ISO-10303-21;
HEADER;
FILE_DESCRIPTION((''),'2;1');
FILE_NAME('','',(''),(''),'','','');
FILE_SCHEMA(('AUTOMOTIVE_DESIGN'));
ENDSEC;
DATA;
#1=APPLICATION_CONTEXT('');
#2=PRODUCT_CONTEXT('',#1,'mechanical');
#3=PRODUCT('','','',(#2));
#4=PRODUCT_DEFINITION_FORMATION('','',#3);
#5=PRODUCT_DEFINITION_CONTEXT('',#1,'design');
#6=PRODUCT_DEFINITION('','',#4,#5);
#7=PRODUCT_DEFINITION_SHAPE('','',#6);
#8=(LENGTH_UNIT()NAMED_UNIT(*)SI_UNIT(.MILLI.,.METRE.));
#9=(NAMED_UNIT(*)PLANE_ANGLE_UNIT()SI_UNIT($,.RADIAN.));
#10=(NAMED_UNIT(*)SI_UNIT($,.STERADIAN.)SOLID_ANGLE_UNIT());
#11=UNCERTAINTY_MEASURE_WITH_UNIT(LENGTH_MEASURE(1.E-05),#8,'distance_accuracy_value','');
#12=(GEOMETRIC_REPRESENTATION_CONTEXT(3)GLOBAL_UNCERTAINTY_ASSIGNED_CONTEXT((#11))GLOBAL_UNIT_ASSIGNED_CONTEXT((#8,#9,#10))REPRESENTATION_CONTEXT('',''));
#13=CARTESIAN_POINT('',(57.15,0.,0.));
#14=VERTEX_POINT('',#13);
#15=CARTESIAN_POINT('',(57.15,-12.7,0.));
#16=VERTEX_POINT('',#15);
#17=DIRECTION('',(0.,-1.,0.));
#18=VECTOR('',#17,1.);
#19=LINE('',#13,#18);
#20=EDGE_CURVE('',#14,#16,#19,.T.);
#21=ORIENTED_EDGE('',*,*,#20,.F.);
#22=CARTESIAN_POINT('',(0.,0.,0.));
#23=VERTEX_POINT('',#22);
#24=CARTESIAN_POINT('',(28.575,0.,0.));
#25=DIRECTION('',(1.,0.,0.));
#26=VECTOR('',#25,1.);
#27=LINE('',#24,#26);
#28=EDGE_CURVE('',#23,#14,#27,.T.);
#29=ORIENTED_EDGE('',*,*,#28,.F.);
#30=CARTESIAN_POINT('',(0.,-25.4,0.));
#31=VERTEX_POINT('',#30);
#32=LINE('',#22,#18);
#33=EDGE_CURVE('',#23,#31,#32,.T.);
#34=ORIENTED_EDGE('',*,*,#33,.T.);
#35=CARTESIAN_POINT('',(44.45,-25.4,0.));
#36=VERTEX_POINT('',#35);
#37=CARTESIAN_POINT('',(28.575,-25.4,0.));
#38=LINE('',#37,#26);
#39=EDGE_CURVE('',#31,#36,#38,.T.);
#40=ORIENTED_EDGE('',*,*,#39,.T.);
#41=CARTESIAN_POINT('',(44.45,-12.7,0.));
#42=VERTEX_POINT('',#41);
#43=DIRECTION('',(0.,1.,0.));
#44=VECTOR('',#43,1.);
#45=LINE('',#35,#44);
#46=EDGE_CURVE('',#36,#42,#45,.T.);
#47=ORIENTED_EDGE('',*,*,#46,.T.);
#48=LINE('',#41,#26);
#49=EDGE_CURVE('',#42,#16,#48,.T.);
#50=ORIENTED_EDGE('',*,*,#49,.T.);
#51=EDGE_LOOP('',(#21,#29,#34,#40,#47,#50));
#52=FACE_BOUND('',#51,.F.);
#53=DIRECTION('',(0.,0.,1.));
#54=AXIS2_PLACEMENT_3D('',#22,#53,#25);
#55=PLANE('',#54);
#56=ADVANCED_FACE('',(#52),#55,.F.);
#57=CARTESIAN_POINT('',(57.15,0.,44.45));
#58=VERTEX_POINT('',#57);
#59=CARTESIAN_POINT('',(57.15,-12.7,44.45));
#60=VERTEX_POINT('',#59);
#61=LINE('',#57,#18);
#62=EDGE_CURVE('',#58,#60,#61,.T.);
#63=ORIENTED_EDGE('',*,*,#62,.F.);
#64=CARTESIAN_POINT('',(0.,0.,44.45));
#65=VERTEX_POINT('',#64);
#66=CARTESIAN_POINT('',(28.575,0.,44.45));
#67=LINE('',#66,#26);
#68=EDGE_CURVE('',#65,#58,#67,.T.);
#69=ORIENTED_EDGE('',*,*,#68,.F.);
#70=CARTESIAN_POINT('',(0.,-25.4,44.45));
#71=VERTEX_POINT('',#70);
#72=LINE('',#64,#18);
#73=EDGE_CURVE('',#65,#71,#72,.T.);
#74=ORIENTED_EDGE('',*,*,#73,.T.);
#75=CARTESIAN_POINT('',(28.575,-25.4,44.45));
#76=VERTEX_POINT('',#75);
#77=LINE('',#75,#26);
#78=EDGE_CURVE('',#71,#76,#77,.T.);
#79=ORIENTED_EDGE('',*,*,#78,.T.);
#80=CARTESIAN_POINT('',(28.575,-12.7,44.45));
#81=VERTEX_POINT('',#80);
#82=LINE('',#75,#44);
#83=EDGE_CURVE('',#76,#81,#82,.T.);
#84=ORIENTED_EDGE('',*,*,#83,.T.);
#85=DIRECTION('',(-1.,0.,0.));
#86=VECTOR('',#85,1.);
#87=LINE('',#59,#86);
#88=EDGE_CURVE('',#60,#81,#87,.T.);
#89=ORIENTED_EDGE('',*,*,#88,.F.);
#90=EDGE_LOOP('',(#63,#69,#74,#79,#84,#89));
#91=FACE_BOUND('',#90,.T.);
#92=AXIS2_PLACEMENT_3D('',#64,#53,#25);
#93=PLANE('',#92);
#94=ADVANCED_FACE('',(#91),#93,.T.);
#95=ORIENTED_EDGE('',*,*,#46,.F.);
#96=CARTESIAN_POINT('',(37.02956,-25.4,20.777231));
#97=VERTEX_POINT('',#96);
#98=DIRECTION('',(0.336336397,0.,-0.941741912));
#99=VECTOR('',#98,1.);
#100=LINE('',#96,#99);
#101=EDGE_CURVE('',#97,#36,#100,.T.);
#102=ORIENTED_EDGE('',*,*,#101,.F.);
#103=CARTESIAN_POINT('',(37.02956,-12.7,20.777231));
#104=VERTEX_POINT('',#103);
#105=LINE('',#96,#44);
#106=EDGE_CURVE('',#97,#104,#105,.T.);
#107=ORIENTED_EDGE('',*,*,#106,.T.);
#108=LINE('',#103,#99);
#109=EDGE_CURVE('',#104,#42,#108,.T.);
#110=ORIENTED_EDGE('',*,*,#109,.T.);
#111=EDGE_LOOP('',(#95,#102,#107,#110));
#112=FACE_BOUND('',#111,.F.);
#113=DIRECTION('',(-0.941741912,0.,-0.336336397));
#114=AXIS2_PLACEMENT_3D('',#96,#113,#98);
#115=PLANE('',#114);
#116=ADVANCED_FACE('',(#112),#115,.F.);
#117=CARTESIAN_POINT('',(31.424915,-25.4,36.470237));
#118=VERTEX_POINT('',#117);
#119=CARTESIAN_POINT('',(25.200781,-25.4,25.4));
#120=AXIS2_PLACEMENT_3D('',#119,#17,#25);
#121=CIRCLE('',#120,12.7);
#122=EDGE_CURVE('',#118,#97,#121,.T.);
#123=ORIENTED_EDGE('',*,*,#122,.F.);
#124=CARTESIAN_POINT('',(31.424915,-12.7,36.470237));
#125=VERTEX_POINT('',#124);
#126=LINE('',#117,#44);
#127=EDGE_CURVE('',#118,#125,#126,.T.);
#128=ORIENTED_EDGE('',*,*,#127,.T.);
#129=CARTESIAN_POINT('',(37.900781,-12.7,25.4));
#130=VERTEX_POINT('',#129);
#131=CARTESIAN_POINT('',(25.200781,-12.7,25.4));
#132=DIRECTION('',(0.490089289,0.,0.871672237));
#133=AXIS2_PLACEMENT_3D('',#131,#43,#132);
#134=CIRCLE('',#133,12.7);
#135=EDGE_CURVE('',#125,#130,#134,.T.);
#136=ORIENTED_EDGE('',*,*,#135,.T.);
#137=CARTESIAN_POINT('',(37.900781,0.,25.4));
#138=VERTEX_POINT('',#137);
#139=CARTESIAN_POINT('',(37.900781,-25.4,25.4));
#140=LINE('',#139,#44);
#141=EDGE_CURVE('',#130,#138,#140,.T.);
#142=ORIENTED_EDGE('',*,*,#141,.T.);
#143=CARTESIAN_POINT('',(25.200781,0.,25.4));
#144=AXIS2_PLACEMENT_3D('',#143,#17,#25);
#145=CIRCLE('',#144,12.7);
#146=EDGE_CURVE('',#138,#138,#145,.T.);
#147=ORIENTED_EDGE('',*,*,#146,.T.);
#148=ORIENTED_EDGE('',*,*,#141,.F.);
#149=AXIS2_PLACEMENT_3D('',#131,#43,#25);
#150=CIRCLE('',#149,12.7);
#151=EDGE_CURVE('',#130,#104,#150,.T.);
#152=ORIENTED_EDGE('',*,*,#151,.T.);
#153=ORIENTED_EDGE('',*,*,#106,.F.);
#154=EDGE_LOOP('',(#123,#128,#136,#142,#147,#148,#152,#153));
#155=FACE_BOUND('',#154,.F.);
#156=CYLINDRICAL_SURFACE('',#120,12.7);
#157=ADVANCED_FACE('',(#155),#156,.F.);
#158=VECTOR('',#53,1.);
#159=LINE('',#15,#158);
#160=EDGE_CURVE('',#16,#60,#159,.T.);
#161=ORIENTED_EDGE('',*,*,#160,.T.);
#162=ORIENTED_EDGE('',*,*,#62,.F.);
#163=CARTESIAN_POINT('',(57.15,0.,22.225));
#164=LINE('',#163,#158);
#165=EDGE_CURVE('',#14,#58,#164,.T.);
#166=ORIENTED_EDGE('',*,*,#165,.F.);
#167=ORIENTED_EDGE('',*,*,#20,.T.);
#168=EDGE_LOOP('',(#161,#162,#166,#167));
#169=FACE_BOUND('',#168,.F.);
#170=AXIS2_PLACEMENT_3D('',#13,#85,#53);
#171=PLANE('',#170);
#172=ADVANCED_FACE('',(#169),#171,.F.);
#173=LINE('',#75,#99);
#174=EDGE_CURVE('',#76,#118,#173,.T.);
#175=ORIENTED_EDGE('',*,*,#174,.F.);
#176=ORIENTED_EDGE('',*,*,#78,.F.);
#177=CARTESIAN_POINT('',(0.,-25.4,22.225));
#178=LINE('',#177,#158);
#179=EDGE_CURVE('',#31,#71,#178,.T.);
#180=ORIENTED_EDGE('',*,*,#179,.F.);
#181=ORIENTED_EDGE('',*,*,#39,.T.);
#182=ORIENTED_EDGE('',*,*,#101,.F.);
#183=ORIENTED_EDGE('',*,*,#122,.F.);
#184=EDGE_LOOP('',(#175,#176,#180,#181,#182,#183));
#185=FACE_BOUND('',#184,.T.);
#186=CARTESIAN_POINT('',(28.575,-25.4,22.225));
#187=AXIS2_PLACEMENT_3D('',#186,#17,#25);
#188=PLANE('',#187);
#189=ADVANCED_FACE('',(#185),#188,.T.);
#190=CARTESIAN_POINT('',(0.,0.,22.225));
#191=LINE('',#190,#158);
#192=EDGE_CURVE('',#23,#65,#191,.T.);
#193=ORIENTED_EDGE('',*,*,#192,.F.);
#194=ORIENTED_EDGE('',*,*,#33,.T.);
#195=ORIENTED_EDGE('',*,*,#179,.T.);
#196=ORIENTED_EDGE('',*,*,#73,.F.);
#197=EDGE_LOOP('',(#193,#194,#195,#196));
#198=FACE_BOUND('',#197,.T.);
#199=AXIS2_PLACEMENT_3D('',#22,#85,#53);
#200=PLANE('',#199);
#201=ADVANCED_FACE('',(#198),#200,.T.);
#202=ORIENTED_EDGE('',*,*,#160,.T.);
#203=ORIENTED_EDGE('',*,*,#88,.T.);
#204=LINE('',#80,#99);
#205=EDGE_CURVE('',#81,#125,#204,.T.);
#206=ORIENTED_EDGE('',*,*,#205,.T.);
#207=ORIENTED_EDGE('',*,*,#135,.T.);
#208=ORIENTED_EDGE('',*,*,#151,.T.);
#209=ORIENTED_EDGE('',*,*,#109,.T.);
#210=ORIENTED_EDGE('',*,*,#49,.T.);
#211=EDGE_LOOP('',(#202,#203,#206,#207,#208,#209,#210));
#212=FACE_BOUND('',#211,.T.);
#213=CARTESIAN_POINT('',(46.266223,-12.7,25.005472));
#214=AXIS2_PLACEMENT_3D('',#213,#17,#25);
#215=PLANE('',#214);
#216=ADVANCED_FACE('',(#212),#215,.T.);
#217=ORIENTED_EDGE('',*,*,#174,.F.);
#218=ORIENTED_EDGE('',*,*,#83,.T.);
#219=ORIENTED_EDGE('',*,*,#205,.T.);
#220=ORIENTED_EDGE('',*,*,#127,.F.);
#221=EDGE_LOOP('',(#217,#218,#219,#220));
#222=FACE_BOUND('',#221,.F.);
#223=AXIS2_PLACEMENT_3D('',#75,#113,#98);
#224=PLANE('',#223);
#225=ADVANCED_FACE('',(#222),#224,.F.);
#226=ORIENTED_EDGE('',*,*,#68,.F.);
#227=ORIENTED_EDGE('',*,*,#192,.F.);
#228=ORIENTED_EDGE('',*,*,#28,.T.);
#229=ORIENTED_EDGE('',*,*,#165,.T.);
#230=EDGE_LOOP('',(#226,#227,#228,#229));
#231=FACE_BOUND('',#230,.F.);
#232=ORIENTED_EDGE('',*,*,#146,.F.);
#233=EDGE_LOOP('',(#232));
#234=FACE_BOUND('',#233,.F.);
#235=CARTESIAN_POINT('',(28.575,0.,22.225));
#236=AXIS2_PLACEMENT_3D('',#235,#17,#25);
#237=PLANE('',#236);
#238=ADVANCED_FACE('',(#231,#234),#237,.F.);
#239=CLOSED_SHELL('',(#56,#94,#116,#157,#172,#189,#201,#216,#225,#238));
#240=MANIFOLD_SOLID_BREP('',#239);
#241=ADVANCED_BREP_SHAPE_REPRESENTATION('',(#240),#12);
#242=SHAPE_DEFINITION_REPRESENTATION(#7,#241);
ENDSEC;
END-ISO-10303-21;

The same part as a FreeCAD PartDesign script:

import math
import FreeCAD as App
import Part
import Sketcher
Q = App.Units.Quantity


def add_polygon(sketch, points):
    """Adds a closed chain of lines whose ends are joined by coincident constraints."""
    first, n = sketch.GeometryCount, len(points)
    for a, b in zip(points, points[1:] + points[:1]):
        sketch.addGeometry(Part.LineSegment(App.Vector(*a, 0), App.Vector(*b, 0)), False)
    for i in range(n):
        sketch.addConstraint(Sketcher.Constraint("Coincident", first + i, 2, first + (i + 1) % n, 1))

doc = App.newDocument("Part")
params = doc.addObject("Spreadsheet::Sheet", "Params")
for row, (alias, value) in enumerate([
    ("sketch1_width", "2.25 in"),
    ("sketch1_height", "1.75 in"),
    ("pad1_length", "1 in"),
    ("sketch2_diameter", "1 in"),
    ("sketch3_radius", "0.5 in"),
    ("sketch3_width", "0.5 in"),
    ("sketch3_height", "1.75 in"),
    ("sketch3_width2", "1.125 in"),
    ("pocket2_length", "0.5 in"),
], start=1):
    params.set(f"A{row}", alias)
    params.set(f"B{row}", "=" + value)
    params.setAlias(f"B{row}", alias)

body = doc.addObject("PartDesign::Body", "Body")

# Sketch on XZ plane
sketch1 = doc.addObject("Sketcher::SketchObject", "Sketch")
body.addObject(sketch1)
sketch1.AttachmentSupport = (doc.XZ_Plane, [""])
sketch1.MapMode = "FlatFace"
add_polygon(sketch1, [(0, 44), (0, 0), (57, 0), (57, 44)])  # lines 0-3
sketch1.addConstraint([
    Sketcher.Constraint("Vertical", 0),
    Sketcher.Constraint("Horizontal", 1),
    Sketcher.Constraint("Vertical", 2),
    Sketcher.Constraint("Horizontal", 3),
    Sketcher.Constraint("Coincident", 0, 2, -1, 1),
    Sketcher.Constraint("DistanceX", 1, 1, 1, 2, Q("2.25 in")),
    Sketcher.Constraint("DistanceY", 0, 2, 0, 1, Q("1.75 in")),
])
sketch1.setExpression("Constraints[9]", "Params.sketch1_width")
sketch1.setExpression("Constraints[10]", "Params.sketch1_height")
pad1 = doc.addObject("PartDesign::Pad", "Pad")
body.addObject(pad1)
pad1.Profile = sketch1
pad1.setExpression("Length", "Params.pad1_length")

# Sketch on XZ plane
sketch2 = doc.addObject("Sketcher::SketchObject", "Sketch001")
body.addObject(sketch2)
sketch2.AttachmentSupport = (doc.XZ_Plane, [""])
sketch2.MapMode = "FlatFace"
sketch2.AttachmentOffset = App.Placement(App.Vector(0, 0, 1 * 25.4), App.Rotation())
sketch2.addGeometry(Part.Circle(App.Vector(25, 25, 0), App.Vector(0, 0, 1), 13), False)
sketch2.addConstraint([
    Sketcher.Constraint("Diameter", 0, Q("1 in")),
    Sketcher.Constraint("DistanceY", -1, 1, 0, 3, Q("1 in")),
    Sketcher.Constraint("DistanceX", -1, 1, 0, 3, Q("25.200781 mm")),
])
sketch2.setExpression("Constraints[0]", "Params.sketch2_diameter")
pocket1 = doc.addObject("PartDesign::Pocket", "Pocket")
body.addObject(pocket1)
pocket1.Profile = sketch2
pocket1.Type = "ThroughAll"

# Sketch on XZ plane
sketch3 = doc.addObject("Sketcher::SketchObject", "Sketch002")
body.addObject(sketch3)
sketch3.AttachmentSupport = (doc.XZ_Plane, [""])
sketch3.MapMode = "FlatFace"
sketch3.AttachmentOffset = App.Placement(App.Vector(0, 0, 1 * 25.4), App.Rotation())
sketch3.addGeometry([
    Part.LineSegment(App.Vector(57.1, 44.5, 0), App.Vector(28.6, 44.5, 0)),  # 0
    Part.LineSegment(App.Vector(28.6, 44.5, 0), App.Vector(31.4, 36.5, 0)),  # 1
    Part.ArcOfCircle(Part.Circle(App.Vector(25.2, 25.4, 0), App.Vector(0, 0, 1), 12.7), math.radians(0), math.radians(61)),  # 2
    Part.ArcOfCircle(Part.Circle(App.Vector(25.2, 25.4, 0), App.Vector(0, 0, 1), 12.7), math.radians(-21), math.radians(0)),  # 3
    Part.LineSegment(App.Vector(37, 20.8, 0), App.Vector(44.5, 0, 0)),  # 4
    Part.LineSegment(App.Vector(44.5, 0, 0), App.Vector(57.1, 0, 0)),  # 5
    Part.LineSegment(App.Vector(57.1, 0, 0), App.Vector(57.1, 44.5, 0)),  # 6
], False)
sketch3.addConstraint([
    Sketcher.Constraint("Coincident", 0, 2, 1, 1),
    Sketcher.Constraint("Coincident", 1, 2, 2, 2),
    Sketcher.Constraint("Tangent", 2, 1, 3, 2),
    Sketcher.Constraint("Coincident", 3, 1, 4, 1),
    Sketcher.Constraint("Coincident", 4, 2, 5, 1),
    Sketcher.Constraint("Coincident", 5, 2, 6, 1),
    Sketcher.Constraint("Coincident", 6, 2, 0, 1),
    Sketcher.Constraint("Horizontal", 0),
    Sketcher.Constraint("Horizontal", 5),
    Sketcher.Constraint("Vertical", 6),
    Sketcher.Constraint("Equal", 2, 3),
    Sketcher.Constraint("PointOnObject", 4, 2, -1),
    Sketcher.Constraint("Parallel", 1, 4),
    Sketcher.Constraint("Horizontal", 3, 3, 2, 1),
    Sketcher.Constraint("Radius", 2, Q("0.5 in")),
    Sketcher.Constraint("DistanceX", 5, 1, 5, 2, Q("0.5 in")),
    Sketcher.Constraint("DistanceY", -1, 1, 2, 3, Q("1 in")),
    Sketcher.Constraint("DistanceY", 6, 1, 6, 2, Q("1.75 in")),
    Sketcher.Constraint("DistanceX", 0, 2, 0, 1, Q("1.125 in")),
    Sketcher.Constraint("DistanceX", -1, 1, 4, 2, Q("1.75 in")),
    Sketcher.Constraint("DistanceX", 3, 1, 2, 1, Q("0.0343 in")),
    Sketcher.Constraint("DistanceX", -1, 1, 2, 3, Q("25.200781 mm")),
])
sketch3.setExpression("Constraints[14]", "Params.sketch3_radius")
sketch3.setExpression("Constraints[15]", "Params.sketch3_width")
sketch3.setExpression("Constraints[17]", "Params.sketch3_height")
sketch3.setExpression("Constraints[18]", "Params.sketch3_width2")
pocket2 = doc.addObject("PartDesign::Pocket", "Pocket001")
body.addObject(pocket2)
pocket2.Profile = sketch3
pocket2.setExpression("Length", "Params.pocket2_length")

doc.recompute()
